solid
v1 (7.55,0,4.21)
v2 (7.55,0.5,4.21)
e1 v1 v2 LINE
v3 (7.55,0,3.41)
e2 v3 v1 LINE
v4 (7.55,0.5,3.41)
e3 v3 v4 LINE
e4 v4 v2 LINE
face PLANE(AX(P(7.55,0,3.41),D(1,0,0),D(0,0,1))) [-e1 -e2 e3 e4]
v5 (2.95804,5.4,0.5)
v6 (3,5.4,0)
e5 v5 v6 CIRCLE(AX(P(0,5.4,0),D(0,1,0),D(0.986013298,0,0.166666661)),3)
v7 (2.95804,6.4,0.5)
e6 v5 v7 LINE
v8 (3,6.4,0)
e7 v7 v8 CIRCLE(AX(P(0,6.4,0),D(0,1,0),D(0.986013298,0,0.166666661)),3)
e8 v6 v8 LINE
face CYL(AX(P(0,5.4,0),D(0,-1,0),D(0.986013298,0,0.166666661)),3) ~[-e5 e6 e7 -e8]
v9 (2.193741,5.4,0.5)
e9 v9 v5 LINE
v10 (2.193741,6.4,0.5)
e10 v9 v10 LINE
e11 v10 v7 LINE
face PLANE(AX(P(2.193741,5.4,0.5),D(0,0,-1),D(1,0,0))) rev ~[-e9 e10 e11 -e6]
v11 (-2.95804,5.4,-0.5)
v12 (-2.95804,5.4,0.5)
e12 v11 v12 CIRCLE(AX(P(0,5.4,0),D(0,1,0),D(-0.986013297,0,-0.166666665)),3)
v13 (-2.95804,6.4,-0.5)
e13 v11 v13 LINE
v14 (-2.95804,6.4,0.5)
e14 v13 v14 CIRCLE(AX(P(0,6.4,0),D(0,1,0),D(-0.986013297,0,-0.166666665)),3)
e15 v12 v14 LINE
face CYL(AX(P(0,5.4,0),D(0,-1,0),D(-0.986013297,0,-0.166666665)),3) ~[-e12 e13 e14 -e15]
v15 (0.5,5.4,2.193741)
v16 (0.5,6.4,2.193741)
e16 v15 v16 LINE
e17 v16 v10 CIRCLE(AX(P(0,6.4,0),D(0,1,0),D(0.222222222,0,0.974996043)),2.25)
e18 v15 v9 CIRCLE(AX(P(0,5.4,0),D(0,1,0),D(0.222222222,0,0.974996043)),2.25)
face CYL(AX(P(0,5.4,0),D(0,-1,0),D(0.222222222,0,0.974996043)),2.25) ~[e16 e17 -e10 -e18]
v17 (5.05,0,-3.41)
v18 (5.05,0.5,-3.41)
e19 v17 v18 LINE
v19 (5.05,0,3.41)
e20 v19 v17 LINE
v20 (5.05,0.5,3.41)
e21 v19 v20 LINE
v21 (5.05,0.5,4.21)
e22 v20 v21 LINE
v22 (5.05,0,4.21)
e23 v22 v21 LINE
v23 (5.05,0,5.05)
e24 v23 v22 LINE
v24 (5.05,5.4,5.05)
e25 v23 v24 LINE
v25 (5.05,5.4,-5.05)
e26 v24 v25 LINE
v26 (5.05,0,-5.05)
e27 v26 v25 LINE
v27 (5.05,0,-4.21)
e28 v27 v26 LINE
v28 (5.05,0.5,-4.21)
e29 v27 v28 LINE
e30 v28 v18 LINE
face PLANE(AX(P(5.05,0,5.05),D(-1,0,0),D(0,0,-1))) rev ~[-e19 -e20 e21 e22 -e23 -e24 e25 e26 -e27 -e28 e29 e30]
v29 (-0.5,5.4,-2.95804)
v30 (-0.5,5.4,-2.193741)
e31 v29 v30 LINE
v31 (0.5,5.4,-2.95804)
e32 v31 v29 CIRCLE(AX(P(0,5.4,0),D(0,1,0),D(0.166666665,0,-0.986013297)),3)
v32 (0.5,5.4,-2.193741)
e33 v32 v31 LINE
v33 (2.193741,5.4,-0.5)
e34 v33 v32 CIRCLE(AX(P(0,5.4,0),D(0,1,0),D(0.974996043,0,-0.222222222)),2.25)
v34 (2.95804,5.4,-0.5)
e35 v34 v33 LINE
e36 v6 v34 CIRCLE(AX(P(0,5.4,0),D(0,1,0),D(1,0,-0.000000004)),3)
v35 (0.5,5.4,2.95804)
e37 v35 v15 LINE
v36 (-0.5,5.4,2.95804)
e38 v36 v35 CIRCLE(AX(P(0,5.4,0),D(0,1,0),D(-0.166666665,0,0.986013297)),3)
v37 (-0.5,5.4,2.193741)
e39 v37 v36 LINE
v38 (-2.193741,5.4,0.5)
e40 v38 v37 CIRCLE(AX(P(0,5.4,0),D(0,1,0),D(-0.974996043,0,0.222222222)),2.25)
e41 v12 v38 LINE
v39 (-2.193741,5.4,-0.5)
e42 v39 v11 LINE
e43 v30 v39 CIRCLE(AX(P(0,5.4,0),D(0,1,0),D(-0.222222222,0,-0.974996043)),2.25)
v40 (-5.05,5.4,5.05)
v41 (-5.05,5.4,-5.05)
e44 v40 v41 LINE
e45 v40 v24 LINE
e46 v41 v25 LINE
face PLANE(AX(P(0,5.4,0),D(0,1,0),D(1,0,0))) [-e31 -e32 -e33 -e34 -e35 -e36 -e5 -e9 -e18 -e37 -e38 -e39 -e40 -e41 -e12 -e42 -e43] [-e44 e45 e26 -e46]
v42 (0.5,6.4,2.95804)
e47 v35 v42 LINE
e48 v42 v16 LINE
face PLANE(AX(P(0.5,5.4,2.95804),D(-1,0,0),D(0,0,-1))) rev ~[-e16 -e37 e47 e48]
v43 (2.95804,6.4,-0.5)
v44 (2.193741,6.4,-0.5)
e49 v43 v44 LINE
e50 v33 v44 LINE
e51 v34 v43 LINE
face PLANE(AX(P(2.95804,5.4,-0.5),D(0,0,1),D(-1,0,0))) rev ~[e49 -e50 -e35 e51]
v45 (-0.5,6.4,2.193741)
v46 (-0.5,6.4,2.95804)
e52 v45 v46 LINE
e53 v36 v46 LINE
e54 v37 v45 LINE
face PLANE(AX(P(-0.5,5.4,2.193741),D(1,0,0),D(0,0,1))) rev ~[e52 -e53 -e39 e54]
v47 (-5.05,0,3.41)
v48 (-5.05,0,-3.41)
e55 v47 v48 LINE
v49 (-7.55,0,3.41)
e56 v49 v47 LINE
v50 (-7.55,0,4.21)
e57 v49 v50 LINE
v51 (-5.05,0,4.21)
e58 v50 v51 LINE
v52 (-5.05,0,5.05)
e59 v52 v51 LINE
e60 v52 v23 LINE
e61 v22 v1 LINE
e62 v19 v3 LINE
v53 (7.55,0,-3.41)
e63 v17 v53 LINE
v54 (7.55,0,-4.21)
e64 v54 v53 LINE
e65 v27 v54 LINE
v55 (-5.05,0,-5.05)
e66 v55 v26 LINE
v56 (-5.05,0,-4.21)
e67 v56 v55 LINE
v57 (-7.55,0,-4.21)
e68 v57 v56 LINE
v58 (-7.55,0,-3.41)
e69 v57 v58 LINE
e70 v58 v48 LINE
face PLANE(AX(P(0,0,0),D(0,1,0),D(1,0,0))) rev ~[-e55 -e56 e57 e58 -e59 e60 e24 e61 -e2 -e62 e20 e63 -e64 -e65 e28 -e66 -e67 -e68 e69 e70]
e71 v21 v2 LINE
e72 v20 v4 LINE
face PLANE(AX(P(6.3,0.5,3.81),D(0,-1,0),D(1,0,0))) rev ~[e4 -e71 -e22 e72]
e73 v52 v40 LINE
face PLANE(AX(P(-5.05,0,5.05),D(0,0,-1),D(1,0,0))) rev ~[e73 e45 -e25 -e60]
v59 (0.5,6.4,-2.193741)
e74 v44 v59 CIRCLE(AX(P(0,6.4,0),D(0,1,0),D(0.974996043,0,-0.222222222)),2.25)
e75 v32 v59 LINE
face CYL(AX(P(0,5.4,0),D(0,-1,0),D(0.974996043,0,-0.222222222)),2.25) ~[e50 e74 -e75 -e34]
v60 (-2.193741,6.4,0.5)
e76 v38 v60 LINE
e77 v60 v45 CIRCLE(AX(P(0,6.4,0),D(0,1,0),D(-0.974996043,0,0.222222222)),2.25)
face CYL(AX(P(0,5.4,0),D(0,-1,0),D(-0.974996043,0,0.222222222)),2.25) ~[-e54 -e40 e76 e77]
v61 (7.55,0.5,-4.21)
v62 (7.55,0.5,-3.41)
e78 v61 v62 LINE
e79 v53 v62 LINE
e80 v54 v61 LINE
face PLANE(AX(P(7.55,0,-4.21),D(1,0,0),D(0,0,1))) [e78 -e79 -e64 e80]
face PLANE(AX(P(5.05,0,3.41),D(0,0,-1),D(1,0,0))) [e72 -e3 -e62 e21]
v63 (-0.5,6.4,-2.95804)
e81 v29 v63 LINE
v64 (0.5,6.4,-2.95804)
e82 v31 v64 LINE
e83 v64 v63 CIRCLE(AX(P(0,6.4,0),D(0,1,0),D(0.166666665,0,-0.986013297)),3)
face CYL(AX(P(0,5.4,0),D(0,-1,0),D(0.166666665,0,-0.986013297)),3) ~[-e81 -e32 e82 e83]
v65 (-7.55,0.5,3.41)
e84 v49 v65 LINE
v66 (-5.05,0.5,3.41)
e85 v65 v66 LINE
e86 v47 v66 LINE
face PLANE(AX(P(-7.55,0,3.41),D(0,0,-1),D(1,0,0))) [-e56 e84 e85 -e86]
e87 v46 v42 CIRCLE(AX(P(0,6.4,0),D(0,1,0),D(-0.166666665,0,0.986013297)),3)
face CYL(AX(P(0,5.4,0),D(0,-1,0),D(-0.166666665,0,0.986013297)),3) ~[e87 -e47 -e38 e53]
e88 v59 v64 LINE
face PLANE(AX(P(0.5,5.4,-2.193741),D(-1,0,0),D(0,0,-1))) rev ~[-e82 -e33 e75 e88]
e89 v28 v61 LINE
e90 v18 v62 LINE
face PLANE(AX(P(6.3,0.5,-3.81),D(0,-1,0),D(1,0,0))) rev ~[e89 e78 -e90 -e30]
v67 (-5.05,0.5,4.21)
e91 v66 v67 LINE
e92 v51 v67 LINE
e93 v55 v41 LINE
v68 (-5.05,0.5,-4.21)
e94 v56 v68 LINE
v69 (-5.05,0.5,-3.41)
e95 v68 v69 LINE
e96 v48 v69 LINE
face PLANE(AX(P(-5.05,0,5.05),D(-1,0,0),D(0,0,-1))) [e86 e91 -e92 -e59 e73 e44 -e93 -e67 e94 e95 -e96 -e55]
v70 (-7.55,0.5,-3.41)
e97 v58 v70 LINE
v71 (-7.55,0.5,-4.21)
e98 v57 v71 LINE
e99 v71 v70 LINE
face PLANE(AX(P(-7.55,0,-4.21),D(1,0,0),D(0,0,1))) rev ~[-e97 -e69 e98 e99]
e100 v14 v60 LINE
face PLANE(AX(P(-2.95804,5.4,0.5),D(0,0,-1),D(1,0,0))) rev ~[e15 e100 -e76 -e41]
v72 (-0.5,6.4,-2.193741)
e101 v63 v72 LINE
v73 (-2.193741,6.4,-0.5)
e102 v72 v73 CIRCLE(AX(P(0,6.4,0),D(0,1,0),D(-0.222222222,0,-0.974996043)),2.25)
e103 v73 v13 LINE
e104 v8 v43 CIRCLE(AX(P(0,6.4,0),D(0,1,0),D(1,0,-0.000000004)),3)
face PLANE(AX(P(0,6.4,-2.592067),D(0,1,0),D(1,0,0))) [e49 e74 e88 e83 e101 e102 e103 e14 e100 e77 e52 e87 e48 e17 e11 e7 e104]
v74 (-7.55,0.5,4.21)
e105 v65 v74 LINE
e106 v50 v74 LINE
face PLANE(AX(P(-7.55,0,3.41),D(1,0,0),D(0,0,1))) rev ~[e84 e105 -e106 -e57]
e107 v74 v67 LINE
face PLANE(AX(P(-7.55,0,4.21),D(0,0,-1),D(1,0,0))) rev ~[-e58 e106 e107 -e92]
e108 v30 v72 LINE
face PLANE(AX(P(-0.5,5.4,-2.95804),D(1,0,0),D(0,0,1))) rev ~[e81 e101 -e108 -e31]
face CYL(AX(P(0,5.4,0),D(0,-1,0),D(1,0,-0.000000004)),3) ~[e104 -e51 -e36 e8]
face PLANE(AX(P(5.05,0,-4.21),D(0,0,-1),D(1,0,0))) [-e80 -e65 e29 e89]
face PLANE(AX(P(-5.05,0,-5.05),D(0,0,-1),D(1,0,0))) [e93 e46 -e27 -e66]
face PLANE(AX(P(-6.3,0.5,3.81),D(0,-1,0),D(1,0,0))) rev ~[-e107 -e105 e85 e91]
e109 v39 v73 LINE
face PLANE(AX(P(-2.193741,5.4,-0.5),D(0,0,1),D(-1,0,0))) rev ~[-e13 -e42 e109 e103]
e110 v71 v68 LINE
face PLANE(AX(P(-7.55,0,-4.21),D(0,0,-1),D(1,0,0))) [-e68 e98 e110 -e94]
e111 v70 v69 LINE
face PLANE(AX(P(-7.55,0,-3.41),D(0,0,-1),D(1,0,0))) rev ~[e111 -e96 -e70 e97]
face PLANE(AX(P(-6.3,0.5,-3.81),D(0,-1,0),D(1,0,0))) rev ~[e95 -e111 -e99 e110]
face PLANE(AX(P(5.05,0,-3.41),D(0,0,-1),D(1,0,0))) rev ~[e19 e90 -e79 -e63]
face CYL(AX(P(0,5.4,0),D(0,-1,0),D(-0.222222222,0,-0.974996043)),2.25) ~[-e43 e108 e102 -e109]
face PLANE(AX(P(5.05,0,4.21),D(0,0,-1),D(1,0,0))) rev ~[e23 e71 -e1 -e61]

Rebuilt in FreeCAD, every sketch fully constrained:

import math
import FreeCAD as App
import Part
import Sketcher


def add_polygon(sketch, points):
    """Adds a closed chain of lines whose ends are joined by coincident constraints."""
    first, n = sketch.GeometryCount, len(points)
    for a, b in zip(points, points[1:] + points[:1]):
        sketch.addGeometry(Part.LineSegment(App.Vector(*a, 0), App.Vector(*b, 0)), False)
    for i in range(n):
        sketch.addConstraint(Sketcher.Constraint("Coincident", first + i, 2, first + (i + 1) % n, 1))

doc = App.newDocument("Part")
params = doc.addObject("Spreadsheet::Sheet", "Params")
for row, (alias, value) in enumerate([
    ("sketch1_width", "10.1 mm"),
    ("pad1_length", "5.4 mm"),
    ("sketch2_radius", "3 mm"),
    ("sketch2_radius2", "2.25 mm"),
    ("pad2_length", "1 mm"),
    ("sketch3_width", "2.5 mm"),
    ("sketch3_height", "0.8 mm"),
    ("pad3_length", "0.5 mm"),
], start=1):
    params.set(f"A{row}", alias)
    params.set(f"B{row}", "=" + value)
    params.setAlias(f"B{row}", alias)

body = doc.addObject("PartDesign::Body", "Body")

# Sketch on XZ plane
sketch1 = doc.addObject("Sketcher::SketchObject", "Sketch")
body.addObject(sketch1)
sketch1.AttachmentSupport = (doc.XZ_Plane, [""])
sketch1.MapMode = "FlatFace"
add_polygon(sketch1, [(-5, -5), (-5, 5), (5, 5), (5, -5)])  # lines 0-3
sketch1.addConstraint([
    Sketcher.Constraint("Vertical", 0),
    Sketcher.Constraint("Horizontal", 1),
    Sketcher.Constraint("Vertical", 2),
    Sketcher.Constraint("Horizontal", 3),
    Sketcher.Constraint("Symmetric", 0, 2, 2, 2, -1, 1),
    Sketcher.Constraint("Equal", 3, 0),
    Sketcher.Constraint("DistanceX", 1, 1, 1, 2, 10.1),
])
sketch1.setExpression("Constraints[10]", "Params.sketch1_width")
pad1 = doc.addObject("PartDesign::Pad", "Pad")
body.addObject(pad1)
pad1.Profile = sketch1
pad1.setExpression("Length", "Params.pad1_length")
pad1.Reversed = True

# Sketch on XZ plane
sketch2 = doc.addObject("Sketcher::SketchObject", "Sketch001")
body.addObject(sketch2)
sketch2.AttachmentSupport = (doc.XZ_Plane, [""])
sketch2.MapMode = "FlatFace"
sketch2.AttachmentOffset = App.Placement(App.Vector(0, 0, -5.4), App.Rotation())
sketch2.addGeometry([
    Part.LineSegment(App.Vector(0.5, -2.2, 0), App.Vector(0.5, -3, 0)),  # 0
    Part.ArcOfCircle(Part.Circle(App.Vector(0, 0, 0), App.Vector(0, 0, 1), 3), math.radians(-99.59), math.radians(-80.41)),  # 1
    Part.LineSegment(App.Vector(-0.5, -3, 0), App.Vector(-0.5, -2.2, 0)),  # 2
    Part.ArcOfCircle(Part.Circle(App.Vector(0, 0, 0), App.Vector(0, 0, 1), 2.2), math.radians(-167), math.radians(-103)),  # 3
    Part.LineSegment(App.Vector(-2.2, -0.5, 0), App.Vector(-3, -0.5, 0)),  # 4
    Part.ArcOfCircle(Part.Circle(App.Vector(0, 0, 0), App.Vector(0, 0, 1), 3), math.radians(170.41), math.radians(189.59)),  # 5
    Part.LineSegment(App.Vector(-3, 0.5, 0), App.Vector(-2.2, 0.5, 0)),  # 6
    Part.ArcOfCircle(Part.Circle(App.Vector(0, 0, 0), App.Vector(0, 0, 1), 2.2), math.radians(103), math.radians(167)),  # 7
    Part.LineSegment(App.Vector(-0.5, 2.2, 0), App.Vector(-0.5, 3, 0)),  # 8
    Part.ArcOfCircle(Part.Circle(App.Vector(0, 0, 0), App.Vector(0, 0, 1), 3), math.radians(80.41), math.radians(99.59)),  # 9
    Part.LineSegment(App.Vector(0.5, 3, 0), App.Vector(0.5, 2.2, 0)),  # 10
    Part.ArcOfCircle(Part.Circle(App.Vector(0, 0, 0), App.Vector(0, 0, 1), 2.2), math.radians(13), math.radians(77)),  # 11
    Part.LineSegment(App.Vector(2.2, 0.5, 0), App.Vector(3, 0.5, 0)),  # 12
    Part.ArcOfCircle(Part.Circle(App.Vector(0, 0, 0), App.Vector(0, 0, 1), 3), math.radians(0), math.radians(9.59)),  # 13
    Part.ArcOfCircle(Part.Circle(App.Vector(0, 0, 0), App.Vector(0, 0, 1), 3), math.radians(-9.59), math.radians(0)),  # 14
    Part.LineSegment(App.Vector(3, -0.5, 0), App.Vector(2.2, -0.5, 0)),  # 15
    Part.ArcOfCircle(Part.Circle(App.Vector(0, 0, 0), App.Vector(0, 0, 1), 2.2), math.radians(-77), math.radians(-13)),  # 16
], False)
sketch2.addConstraint([
    Sketcher.Constraint("Coincident", 0, 2, 1, 2),
    Sketcher.Constraint("Coincident", 1, 1, 2, 1),
    Sketcher.Constraint("Coincident", 2, 2, 3, 2),
    Sketcher.Constraint("Coincident", 3, 1, 4, 1),
    Sketcher.Constraint("Coincident", 4, 2, 5, 2),
    Sketcher.Constraint("Coincident", 5, 1, 6, 1),
    Sketcher.Constraint("Coincident", 6, 2, 7, 2),
    Sketcher.Constraint("Coincident", 7, 1, 8, 1),
    Sketcher.Constraint("Coincident", 8, 2, 9, 2),
    Sketcher.Constraint("Coincident", 9, 1, 10, 1),
    Sketcher.Constraint("Coincident", 10, 2, 11, 2),
    Sketcher.Constraint("Coincident", 11, 1, 12, 1),
    Sketcher.Constraint("Coincident", 12, 2, 13, 2),
    Sketcher.Constraint("Tangent", 13, 1, 14, 2),
    Sketcher.Constraint("Coincident", 14, 1, 15, 1),
    Sketcher.Constraint("Coincident", 15, 2, 16, 2),
    Sketcher.Constraint("Coincident", 16, 1, 0, 1),
    Sketcher.Constraint("Vertical", 0),
    Sketcher.Constraint("Vertical", 2),
    Sketcher.Constraint("Horizontal", 4),
    Sketcher.Constraint("Horizontal", 6),
    Sketcher.Constraint("Vertical", 8),
    Sketcher.Constraint("Vertical", 10),
    Sketcher.Constraint("Horizontal", 12),
    Sketcher.Constraint("Horizontal", 15),
    Sketcher.Constraint("Coincident", 1, 3, -1, 1),
    Sketcher.Constraint("Coincident", 3, 3, -1, 1),
    Sketcher.Constraint("Coincident", 5, 3, -1, 1),
    Sketcher.Constraint("Coincident", 7, 3, -1, 1),
    Sketcher.Constraint("Coincident", 9, 3, -1, 1),
    Sketcher.Constraint("Coincident", 11, 3, -1, 1),
    Sketcher.Constraint("Coincident", 13, 3, -1, 1),
    Sketcher.Constraint("Coincident", 16, 3, -1, 1),
    Sketcher.Constraint("Equal", 1, 5),
    Sketcher.Constraint("Equal", 3, 7),
    Sketcher.Constraint("Equal", 5, 9),
    Sketcher.Constraint("Equal", 7, 11),
    Sketcher.Constraint("Equal", 9, 13),
    Sketcher.Constraint("Equal", 13, 14),
    Sketcher.Constraint("Equal", 11, 16),
    Sketcher.Constraint("PointOnObject", 13, 1, -1),
    Sketcher.Constraint("Horizontal", 0, 2, 1, 1),
    Sketcher.Constraint("Horizontal", 8, 2, 9, 1),
    Sketcher.Constraint("Horizontal", 6, 2, 11, 1),
    Sketcher.Constraint("Horizontal", 4, 2, 14, 1),
    Sketcher.Constraint("Vertical", 4, 2, 5, 1),
    Sketcher.Constraint("Vertical", 2, 2, 7, 1),
    Sketcher.Constraint("Equal", 15, 0),
    Sketcher.Constraint("Radius", 1, 3.0),
    Sketcher.Constraint("Radius", 3, 2.25),
    Sketcher.Constraint("DistanceX", 1, 1, 0, 2, 1.0),
])
sketch2.setExpression("Constraints[48]", "Params.sketch2_radius")
sketch2.setExpression("Constraints[49]", "Params.sketch2_radius2")
pad2 = doc.addObject("PartDesign::Pad", "Pad001")
body.addObject(pad2)
pad2.Profile = sketch2
pad2.setExpression("Length", "Params.pad2_length")
pad2.Reversed = True

# Sketch on XZ plane
sketch3 = doc.addObject("Sketcher::SketchObject", "Sketch002")
body.addObject(sketch3)
sketch3.AttachmentSupport = (doc.XZ_Plane, [""])
sketch3.MapMode = "FlatFace"
add_polygon(sketch3, [(-7.5, 4.2), (-7.5, 3.4), (-5, 3.4), (-5, 4.2)])  # lines 0-3
add_polygon(sketch3, [(5, 4.2), (5, 3.4), (7.5, 3.4), (7.5, 4.2)])  # lines 4-7
add_polygon(sketch3, [(5, -3.4), (5, -4.2), (7.5, -4.2), (7.5, -3.4)])  # lines 8-11
add_polygon(sketch3, [(-7.5, -3.4), (-7.5, -4.2), (-5, -4.2), (-5, -3.4)])  # lines 12-15
sketch3.addConstraint([
    Sketcher.Constraint("Vertical", 0),
    Sketcher.Constraint("Horizontal", 1),
    Sketcher.Constraint("Vertical", 2),
    Sketcher.Constraint("Horizontal", 3),
    Sketcher.Constraint("Vertical", 4),
    Sketcher.Constraint("Horizontal", 5),
    Sketcher.Constraint("Vertical", 6),
    Sketcher.Constraint("Horizontal", 7),
    Sketcher.Constraint("Vertical", 8),
    Sketcher.Constraint("Horizontal", 9),
    Sketcher.Constraint("Vertical", 10),
    Sketcher.Constraint("Horizontal", 11),
    Sketcher.Constraint("Vertical", 12),
    Sketcher.Constraint("Horizontal", 13),
    Sketcher.Constraint("Vertical", 14),
    Sketcher.Constraint("Horizontal", 15),
    Sketcher.Constraint("Symmetric", 2, 2, 8, 2, -1, 1),
    Sketcher.Constraint("Symmetric", 0, 2, 10, 2, -1, 1),
    Sketcher.Constraint("Symmetric", 6, 2, 12, 2, -1, 1),
    Sketcher.Constraint("Symmetric", 4, 2, 14, 2, -1, 1),
    Sketcher.Constraint("Symmetric", 1, 2, 4, 2, -2),
    Sketcher.Constraint("Symmetric", 3, 2, 6, 2, -2),
    Sketcher.Constraint("DistanceX", 1, 1, 1, 2, 2.5),
    Sketcher.Constraint("DistanceY", 0, 2, 0, 1, 0.8),
    Sketcher.Constraint("DistanceX", 1, 2, 4, 2, 10.1),
    Sketcher.Constraint("DistanceY", -1, 1, 0, 2, 3.41),
])
sketch3.setExpression("Constraints[38]", "Params.sketch3_width")
sketch3.setExpression("Constraints[39]", "Params.sketch3_height")
pad3 = doc.addObject("PartDesign::Pad", "Pad002")
body.addObject(pad3)
pad3.Profile = sketch3
pad3.setExpression("Length", "Params.pad3_length")
pad3.Reversed = True

doc.recompute()
